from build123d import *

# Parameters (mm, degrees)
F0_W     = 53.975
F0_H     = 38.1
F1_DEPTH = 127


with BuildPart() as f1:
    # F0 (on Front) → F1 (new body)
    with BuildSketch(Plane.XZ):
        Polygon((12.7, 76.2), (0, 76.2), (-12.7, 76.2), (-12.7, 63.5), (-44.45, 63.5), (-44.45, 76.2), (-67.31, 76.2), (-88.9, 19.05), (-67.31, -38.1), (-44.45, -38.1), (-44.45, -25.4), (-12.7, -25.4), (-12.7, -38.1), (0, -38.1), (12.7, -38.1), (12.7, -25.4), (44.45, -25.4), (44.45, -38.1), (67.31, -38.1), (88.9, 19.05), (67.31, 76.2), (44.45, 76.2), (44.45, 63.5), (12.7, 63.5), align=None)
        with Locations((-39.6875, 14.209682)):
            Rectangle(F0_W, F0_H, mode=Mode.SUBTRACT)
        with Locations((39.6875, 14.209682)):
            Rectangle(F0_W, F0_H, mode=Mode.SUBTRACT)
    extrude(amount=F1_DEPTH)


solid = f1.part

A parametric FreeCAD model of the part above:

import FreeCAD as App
import Part
import Sketcher
Q = App.Units.Quantity


def add_polygon(sketch, points):
    """Adds a closed chain of lines whose ends are joined by coincident constraints."""
    first, n = sketch.GeometryCount, len(points)
    for a, b in zip(points, points[1:] + points[:1]):
        sketch.addGeometry(Part.LineSegment(App.Vector(*a, 0), App.Vector(*b, 0)), False)
    for i in range(n):
        sketch.addConstraint(Sketcher.Constraint("Coincident", first + i, 2, first + (i + 1) % n, 1))

doc = App.newDocument("Part")
body = doc.addObject("PartDesign::Body", "Body")

sketch1 = body.newObject("Sketcher::SketchObject", "Sketch")
sketch1.AttachmentSupport = (doc.getObject("XZ_Plane"), [""])
sketch1.MapMode = "FlatFace"
add_polygon(sketch1, [(13, 76), (-13, 76), (-13, 64), (-44, 64), (-44, 76), (-67, 76), (-89, 19), (-67, -38), (-44, -38), (-44, -25), (-13, -25), (-13, -38), (13, -38), (13, -25), (44, -25), (44, -38), (67, -38), (89, 19), (67, 76), (44, 76), (44, 64), (13, 64)])
add_polygon(sketch1, [(-13, -5), (-67, -5), (-67, 33), (-13, 33)])
add_polygon(sketch1, [(67, -5), (13, -5), (13, 33), (67, 33)])
sketch1.addConstraint([
    Sketcher.Constraint("Horizontal", 0),
    Sketcher.Constraint("Vertical", 1),
    Sketcher.Constraint("Horizontal", 2),
    Sketcher.Constraint("Vertical", 3),
    Sketcher.Constraint("Horizontal", 4),
    Sketcher.Constraint("Horizontal", 7),
    Sketcher.Constraint("Vertical", 8),
    Sketcher.Constraint("Horizontal", 9),
    Sketcher.Constraint("Vertical", 10),
    Sketcher.Constraint("Horizontal", 11),
    Sketcher.Constraint("Vertical", 12),
    Sketcher.Constraint("Horizontal", 13),
    Sketcher.Constraint("Vertical", 14),
    Sketcher.Constraint("Horizontal", 15),
    Sketcher.Constraint("Horizontal", 18),
    Sketcher.Constraint("Vertical", 19),
    Sketcher.Constraint("Horizontal", 20),
    Sketcher.Constraint("Vertical", 21),
    Sketcher.Constraint("Horizontal", 22),
    Sketcher.Constraint("Vertical", 23),
    Sketcher.Constraint("Horizontal", 24),
    Sketcher.Constraint("Vertical", 25),
    Sketcher.Constraint("Horizontal", 26),
    Sketcher.Constraint("Vertical", 27),
    Sketcher.Constraint("Horizontal", 28),
    Sketcher.Constraint("Vertical", 29),
    Sketcher.Constraint("Symmetric", 9, 2, 12, 2, -2),
    Sketcher.Constraint("Symmetric", 7, 2, 14, 2, -2),
    Sketcher.Constraint("Symmetric", 5, 2, 16, 2, -2),
    Sketcher.Constraint("Symmetric", 4, 2, 17, 2, -2),
    Sketcher.Constraint("Symmetric", 2, 2, 19, 2, -2),
    Sketcher.Constraint("Symmetric", 25, 2, 26, 2, -2),
    Sketcher.Constraint("Symmetric", 23, 2, 28, 2, -2),
    Sketcher.Constraint("Parallel", 5, 16),
    Sketcher.Constraint("Parallel", 6, 17),
    Sketcher.Constraint("Horizontal", 0, 2, 3, 2),
    Sketcher.Constraint("Horizontal", 7, 2, 10, 2),
    Sketcher.Constraint("Vertical", 4, 2, 6, 2),
    Sketcher.Constraint("Vertical", 3, 2, 7, 2),
    Sketcher.Constraint("Vertical", 1, 2, 9, 2),
    Sketcher.Constraint("Vertical", 12, 2, 20, 2),
    Sketcher.Constraint("Vertical", 10, 2, 24, 2),
    Sketcher.Constraint("Equal", 3, 8),
    Sketcher.Constraint("DistanceX", 0, 2, 0, 1, Q("1 in")),
    Sketcher.Constraint("DistanceX", 4, 2, 4, 1, Q("0.9 in")),
    Sketcher.Constraint("DistanceY", 1, 2, 1, 1, Q("0.5 in")),
    Sketcher.Constraint("DistanceY", 23, 1, 23, 2, Q("1.5 in")),
    Sketcher.Constraint("DistanceY", -1, 1, 0, 2, Q("3 in")),
    Sketcher.Constraint("DistanceY", 8, 2, -1, 1, Q("1 in")),
    Sketcher.Constraint("DistanceX", 5, 2, 1, 2, Q("3 in")),
    Sketcher.Constraint("DistanceX", 2, 2, 2, 1, Q("1.25 in")),
    Sketcher.Constraint("DistanceX", 22, 2, 22, 1, Q("2.125 in")),
    Sketcher.Constraint("DistanceY", -1, 1, 23, 2, 33.259682),
])
pad1 = body.newObject("PartDesign::Pad", "Pad")
pad1.Profile = sketch1
pad1.Length = Q("5 in")

doc.recompute()
